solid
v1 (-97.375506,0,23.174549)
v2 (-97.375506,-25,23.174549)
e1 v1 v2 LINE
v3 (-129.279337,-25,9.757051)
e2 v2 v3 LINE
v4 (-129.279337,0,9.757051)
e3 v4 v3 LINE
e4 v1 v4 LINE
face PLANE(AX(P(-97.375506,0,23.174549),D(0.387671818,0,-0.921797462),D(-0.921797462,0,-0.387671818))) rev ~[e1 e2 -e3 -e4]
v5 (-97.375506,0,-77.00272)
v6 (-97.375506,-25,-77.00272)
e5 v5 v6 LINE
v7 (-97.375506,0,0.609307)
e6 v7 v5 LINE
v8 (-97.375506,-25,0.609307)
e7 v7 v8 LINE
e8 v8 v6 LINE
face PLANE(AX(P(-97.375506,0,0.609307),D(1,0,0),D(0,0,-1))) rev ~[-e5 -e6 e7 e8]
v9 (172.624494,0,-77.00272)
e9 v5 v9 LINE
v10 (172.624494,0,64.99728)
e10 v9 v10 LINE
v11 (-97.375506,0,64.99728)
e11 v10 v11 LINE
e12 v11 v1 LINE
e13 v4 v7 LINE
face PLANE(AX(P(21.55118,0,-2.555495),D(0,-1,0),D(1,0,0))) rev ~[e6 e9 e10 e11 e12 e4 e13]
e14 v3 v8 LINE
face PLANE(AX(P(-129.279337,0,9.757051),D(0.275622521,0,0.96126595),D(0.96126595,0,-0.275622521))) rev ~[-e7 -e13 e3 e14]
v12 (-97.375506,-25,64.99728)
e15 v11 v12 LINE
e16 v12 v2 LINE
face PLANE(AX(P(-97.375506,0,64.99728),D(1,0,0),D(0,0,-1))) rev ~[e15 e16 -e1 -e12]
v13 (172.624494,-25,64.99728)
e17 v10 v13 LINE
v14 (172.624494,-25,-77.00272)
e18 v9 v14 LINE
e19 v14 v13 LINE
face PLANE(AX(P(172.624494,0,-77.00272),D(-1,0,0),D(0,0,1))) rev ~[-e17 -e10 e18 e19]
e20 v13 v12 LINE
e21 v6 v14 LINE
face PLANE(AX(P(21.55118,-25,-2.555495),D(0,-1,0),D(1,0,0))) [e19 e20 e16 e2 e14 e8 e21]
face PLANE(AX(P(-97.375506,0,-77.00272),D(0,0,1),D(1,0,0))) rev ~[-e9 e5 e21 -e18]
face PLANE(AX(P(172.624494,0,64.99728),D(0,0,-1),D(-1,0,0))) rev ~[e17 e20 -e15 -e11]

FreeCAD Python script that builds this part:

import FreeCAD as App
import Part
import Sketcher


def add_polygon(sketch, points):
    """Adds a closed chain of lines whose ends are joined by coincident constraints."""
    first, n = sketch.GeometryCount, len(points)
    for a, b in zip(points, points[1:] + points[:1]):
        sketch.addGeometry(Part.LineSegment(App.Vector(*a, 0), App.Vector(*b, 0)), False)
    for i in range(n):
        sketch.addConstraint(Sketcher.Constraint("Coincident", first + i, 2, first + (i + 1) % n, 1))

doc = App.newDocument("Part")
body = doc.addObject("PartDesign::Body", "Body")

# Sketch on XZ plane
sketch1 = body.newObject("Sketcher::SketchObject", "Sketch")
sketch1.AttachmentSupport = (doc.getObject("XZ_Plane"), [""])
sketch1.MapMode = "FlatFace"
add_polygon(sketch1, [(173, 65), (-97, 65), (-97, 23), (-129, 10), (-97, 1), (-97, -77), (173, -77)])  # lines 0-6
sketch1.addConstraint(Sketcher.Constraint("Horizontal", 0))
sketch1.addConstraint(Sketcher.Constraint("Vertical", 1))
sketch1.addConstraint(Sketcher.Constraint("Vertical", 4))
sketch1.addConstraint(Sketcher.Constraint("Horizontal", 5))
sketch1.addConstraint(Sketcher.Constraint("Vertical", 6))
sketch1.addConstraint(Sketcher.Constraint("Vertical", 1, 2, 3, 2))
sketch1.addConstraint(Sketcher.Constraint("DistanceX", 0, 2, 0, 1, 270.0))
sketch1.addConstraint(Sketcher.Constraint("DistanceY", 6, 1, 6, 2, 142.0))
sketch1.addConstraint(Sketcher.Constraint("DistanceY", 1, 2, 1, 1, 41.82273))
sketch1.addConstraint(Sketcher.Constraint("DistanceY", 2, 2, 1, 2, 13.417499))
sketch1.addConstraint(Sketcher.Constraint("Distance", 3, 33.189391))
sketch1.addConstraint(Sketcher.Constraint("DistanceY", 4, 2, 4, 1, 77.612027))
sketch1.addConstraint(Sketcher.Constraint("DistanceY", -1, 1, 0, 2, 64.99728))
sketch1.addConstraint(Sketcher.Constraint("DistanceX", 0, 2, -1, 1, 97.375506))
pad1 = body.newObject("PartDesign::Pad", "Pad")
pad1.Profile = sketch1
pad1.Length = 25

doc.recompute()
